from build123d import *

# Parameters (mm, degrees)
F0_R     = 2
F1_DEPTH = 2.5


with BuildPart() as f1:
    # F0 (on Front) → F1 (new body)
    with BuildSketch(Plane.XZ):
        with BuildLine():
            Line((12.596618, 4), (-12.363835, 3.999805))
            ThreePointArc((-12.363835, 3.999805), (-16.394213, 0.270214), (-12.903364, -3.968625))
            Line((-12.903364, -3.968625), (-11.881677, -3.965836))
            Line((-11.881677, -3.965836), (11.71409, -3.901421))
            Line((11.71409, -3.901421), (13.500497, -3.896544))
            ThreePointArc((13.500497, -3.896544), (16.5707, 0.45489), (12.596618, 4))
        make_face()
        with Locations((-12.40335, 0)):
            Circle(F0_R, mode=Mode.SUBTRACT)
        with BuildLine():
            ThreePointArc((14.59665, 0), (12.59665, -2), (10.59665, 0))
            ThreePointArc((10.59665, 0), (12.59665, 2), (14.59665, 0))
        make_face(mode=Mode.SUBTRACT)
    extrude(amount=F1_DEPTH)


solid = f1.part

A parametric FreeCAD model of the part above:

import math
import FreeCAD as App
import Part
import Sketcher
from FreeCAD import Vector

doc = App.newDocument("Part")
body = doc.addObject("PartDesign::Body", "Body")

sketch1 = body.newObject("Sketcher::SketchObject", "Sketch")
sketch1.AttachmentSupport = (doc.getObject("XZ_Plane"), [""])
sketch1.MapMode = "FlatFace"
sketch1.addGeometry([
    Part.LineSegment(Vector(12.6, 4, 0), Vector(-12.4, 4, 0)),
    Part.ArcOfCircle(Part.Circle(Vector(-12.4, 0, 0), Vector(0, 0, 1), 4), math.radians(89), math.radians(263)),
    Part.LineSegment(Vector(-12.9, -4, 0), Vector(-11.9, -4, 0)),
    Part.LineSegment(Vector(-11.9, -4, 0), Vector(11.7, -3.9, 0)),
    Part.LineSegment(Vector(11.7, -3.9, 0), Vector(13.5, -3.9, 0)),
    Part.ArcOfCircle(Part.Circle(Vector(12.6, 0, 0), Vector(0, 0, 1), 4), math.radians(-77), math.radians(90)),
    Part.Circle(Vector(-12.4, 0, 0), Vector(0, 0, 1), 2),
    Part.Circle(Vector(12.6, 0, 0), Vector(0, 0, 1), 2),
], False)
sketch1.addConstraint([
    Sketcher.Constraint("Coincident", 0, 2, 1, 1),
    Sketcher.Constraint("Coincident", 1, 2, 2, 1),
    Sketcher.Constraint("Coincident", 2, 2, 3, 1),
    Sketcher.Constraint("Coincident", 3, 2, 4, 1),
    Sketcher.Constraint("Coincident", 4, 2, 5, 1),
    Sketcher.Constraint("Tangent", 5, 2, 0, 1),
    Sketcher.Constraint("Coincident", 6, 3, 1, 3),
    Sketcher.Constraint("Coincident", 7, 3, 5, 3),
    Sketcher.Constraint("Equal", 1, 5),
    Sketcher.Constraint("Equal", 6, 7),
    Sketcher.Constraint("PointOnObject", 1, 3, -1),
    Sketcher.Constraint("PointOnObject", 5, 3, -1),
    Sketcher.Constraint("Parallel", 2, 3),
    Sketcher.Constraint("Parallel", 3, 4),
    Sketcher.Constraint("Diameter", 6, 4.0),
    Sketcher.Constraint("Radius", 1, 4.0),
    Sketcher.Constraint("DistanceX", 1, 3, 5, 3, 25.000001),
    Sketcher.Constraint("Distance", 2, 1.021691),
    Sketcher.Constraint("DistanceX", 1, 3, -1, 1, 12.40335),
    Sketcher.Constraint("DistanceX", -1, 1, 3, 2, 11.71409),
    Sketcher.Constraint("DistanceY", 3, 2, -1, 1, 3.901421),
    Sketcher.Constraint("DistanceX", 1, 2, 0, 2, 0.539529),
    Sketcher.Constraint("DistanceY", 1, 2, 0, 2, 7.96843),
])
pad1 = body.newObject("PartDesign::Pad", "Pad")
pad1.Profile = sketch1
pad1.Length = 2.5

doc.recompute()
